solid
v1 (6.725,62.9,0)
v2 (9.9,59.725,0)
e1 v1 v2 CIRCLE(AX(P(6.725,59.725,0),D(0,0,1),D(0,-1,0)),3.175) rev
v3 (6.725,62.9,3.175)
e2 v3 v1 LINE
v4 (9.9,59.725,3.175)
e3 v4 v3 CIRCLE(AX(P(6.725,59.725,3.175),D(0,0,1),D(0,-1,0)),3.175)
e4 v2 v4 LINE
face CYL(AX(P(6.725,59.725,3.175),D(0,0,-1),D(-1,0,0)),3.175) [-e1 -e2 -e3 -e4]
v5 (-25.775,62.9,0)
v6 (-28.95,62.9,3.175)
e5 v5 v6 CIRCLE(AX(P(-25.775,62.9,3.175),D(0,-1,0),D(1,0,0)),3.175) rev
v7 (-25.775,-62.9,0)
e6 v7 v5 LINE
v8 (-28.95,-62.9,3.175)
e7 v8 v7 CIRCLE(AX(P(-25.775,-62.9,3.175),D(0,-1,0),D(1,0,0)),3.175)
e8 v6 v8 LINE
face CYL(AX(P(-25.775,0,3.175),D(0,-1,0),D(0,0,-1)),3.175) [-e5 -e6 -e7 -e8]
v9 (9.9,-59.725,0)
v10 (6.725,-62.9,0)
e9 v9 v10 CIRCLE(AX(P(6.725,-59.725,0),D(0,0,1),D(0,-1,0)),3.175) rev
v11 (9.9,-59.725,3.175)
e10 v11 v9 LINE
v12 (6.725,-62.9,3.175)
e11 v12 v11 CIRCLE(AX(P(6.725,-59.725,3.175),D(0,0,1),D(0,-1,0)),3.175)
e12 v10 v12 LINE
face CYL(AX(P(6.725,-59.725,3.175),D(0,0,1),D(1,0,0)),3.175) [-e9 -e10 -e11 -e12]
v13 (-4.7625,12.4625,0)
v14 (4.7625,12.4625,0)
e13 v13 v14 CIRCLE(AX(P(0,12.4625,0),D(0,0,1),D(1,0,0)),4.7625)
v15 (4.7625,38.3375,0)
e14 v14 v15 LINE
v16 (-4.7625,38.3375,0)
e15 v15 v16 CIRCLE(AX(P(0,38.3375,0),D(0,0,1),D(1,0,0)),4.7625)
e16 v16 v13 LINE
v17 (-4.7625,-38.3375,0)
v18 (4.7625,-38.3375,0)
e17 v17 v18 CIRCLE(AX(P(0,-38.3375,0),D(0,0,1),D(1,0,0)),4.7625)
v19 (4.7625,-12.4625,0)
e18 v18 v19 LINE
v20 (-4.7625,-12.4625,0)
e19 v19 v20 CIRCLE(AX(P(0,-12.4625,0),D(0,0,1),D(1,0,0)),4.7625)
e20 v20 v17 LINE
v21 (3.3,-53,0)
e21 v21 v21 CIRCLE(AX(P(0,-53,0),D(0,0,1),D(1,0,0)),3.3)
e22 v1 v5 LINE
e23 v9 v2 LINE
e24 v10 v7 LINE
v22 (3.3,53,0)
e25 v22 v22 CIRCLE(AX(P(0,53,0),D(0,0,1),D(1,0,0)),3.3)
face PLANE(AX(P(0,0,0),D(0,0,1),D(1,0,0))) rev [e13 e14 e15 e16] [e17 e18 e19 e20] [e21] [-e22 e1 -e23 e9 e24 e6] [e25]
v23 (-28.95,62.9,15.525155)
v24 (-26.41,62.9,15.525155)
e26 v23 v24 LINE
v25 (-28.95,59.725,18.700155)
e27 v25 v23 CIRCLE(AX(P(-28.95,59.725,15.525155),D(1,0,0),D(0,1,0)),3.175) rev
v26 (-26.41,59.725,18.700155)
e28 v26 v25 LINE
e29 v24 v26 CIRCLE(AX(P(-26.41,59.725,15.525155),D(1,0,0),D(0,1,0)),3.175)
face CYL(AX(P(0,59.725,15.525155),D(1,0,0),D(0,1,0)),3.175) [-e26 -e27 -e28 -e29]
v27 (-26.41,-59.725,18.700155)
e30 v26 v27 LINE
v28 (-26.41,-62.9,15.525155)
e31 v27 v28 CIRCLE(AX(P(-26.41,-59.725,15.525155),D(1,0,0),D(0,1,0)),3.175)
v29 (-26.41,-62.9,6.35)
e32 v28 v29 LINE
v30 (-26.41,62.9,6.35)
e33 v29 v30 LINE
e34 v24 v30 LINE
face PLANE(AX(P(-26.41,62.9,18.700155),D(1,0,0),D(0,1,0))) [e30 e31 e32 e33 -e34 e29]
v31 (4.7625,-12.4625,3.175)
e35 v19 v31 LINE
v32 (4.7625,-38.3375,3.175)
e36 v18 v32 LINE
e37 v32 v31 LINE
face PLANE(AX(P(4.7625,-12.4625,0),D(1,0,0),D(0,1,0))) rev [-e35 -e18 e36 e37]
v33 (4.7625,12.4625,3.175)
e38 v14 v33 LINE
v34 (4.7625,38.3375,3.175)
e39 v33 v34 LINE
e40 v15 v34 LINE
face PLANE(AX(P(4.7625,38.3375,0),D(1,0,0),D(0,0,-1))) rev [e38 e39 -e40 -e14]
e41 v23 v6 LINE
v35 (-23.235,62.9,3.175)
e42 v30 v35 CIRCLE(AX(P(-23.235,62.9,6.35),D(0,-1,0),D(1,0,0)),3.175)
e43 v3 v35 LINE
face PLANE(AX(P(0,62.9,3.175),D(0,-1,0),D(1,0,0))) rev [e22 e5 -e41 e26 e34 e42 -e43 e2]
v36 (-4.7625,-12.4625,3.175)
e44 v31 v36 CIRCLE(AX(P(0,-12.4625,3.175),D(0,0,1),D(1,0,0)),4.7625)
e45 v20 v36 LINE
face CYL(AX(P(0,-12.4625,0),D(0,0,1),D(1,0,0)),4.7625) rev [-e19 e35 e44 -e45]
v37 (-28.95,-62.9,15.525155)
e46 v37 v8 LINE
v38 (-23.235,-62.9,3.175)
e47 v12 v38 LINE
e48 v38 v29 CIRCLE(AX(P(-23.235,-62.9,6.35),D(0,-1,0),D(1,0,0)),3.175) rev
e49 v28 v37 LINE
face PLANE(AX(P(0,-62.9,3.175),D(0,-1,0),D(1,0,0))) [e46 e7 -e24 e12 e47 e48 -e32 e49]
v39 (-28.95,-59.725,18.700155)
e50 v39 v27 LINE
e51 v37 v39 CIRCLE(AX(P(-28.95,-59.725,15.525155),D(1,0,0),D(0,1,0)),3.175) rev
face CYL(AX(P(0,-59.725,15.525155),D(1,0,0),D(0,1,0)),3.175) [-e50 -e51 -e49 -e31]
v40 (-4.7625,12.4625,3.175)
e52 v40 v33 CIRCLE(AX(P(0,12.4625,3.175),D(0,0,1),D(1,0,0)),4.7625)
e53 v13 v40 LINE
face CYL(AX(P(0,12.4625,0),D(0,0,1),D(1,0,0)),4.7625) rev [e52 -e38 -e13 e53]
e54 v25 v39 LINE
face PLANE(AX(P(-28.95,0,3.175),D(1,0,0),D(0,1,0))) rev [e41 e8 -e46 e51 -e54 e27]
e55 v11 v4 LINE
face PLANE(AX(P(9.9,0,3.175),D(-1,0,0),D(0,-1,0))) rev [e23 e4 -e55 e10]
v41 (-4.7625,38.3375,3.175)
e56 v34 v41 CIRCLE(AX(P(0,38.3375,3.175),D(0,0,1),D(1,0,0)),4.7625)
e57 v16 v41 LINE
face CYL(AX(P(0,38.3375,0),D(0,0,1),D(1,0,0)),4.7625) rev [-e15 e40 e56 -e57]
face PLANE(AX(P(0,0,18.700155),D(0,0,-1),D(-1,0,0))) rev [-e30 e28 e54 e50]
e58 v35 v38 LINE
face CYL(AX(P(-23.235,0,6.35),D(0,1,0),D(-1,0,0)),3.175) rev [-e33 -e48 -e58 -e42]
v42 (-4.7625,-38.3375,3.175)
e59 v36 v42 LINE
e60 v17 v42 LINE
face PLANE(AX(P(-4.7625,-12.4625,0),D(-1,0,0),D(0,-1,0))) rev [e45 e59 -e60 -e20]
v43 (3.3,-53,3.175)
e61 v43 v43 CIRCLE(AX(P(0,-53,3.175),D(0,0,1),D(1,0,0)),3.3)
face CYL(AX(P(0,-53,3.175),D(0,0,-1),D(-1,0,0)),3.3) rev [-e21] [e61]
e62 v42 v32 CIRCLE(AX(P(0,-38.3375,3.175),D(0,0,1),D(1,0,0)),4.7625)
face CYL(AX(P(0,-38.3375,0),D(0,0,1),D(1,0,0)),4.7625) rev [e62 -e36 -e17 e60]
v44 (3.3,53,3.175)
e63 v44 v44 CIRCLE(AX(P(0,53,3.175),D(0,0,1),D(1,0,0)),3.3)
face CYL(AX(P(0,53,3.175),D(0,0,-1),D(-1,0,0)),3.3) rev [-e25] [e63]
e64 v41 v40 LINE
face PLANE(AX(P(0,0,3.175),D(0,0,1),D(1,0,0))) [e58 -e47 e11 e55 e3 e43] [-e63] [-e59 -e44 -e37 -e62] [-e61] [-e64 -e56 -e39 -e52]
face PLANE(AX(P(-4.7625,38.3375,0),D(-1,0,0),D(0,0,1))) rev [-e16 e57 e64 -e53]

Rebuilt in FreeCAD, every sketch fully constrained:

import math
import FreeCAD as App
import Part
import Sketcher
Q = App.Units.Quantity


def edges_at(feature, points):
    """Names of the edges that pass closest to the given points."""
    edges = feature.Shape.Edges
    near = lambda p: min(range(len(edges)), key=lambda i: edges[i].distToShape(Part.Vertex(*p))[0])
    return sorted({f"Edge{near(p) + 1}" for p in points})

doc = App.newDocument("Part")
body = doc.addObject("PartDesign::Body", "Body")

sketch1 = doc.addObject("Sketcher::SketchObject", "Sketch")
body.addObject(sketch1)
sketch1.AttachmentSupport = (doc.XY_Plane, [""])
sketch1.MapMode = "FlatFace"
sketch1.addGeometry(Part.LineSegment(App.Vector(9.9, -62.9, 0), App.Vector(9.9, 62.9, 0)), False)
sketch1.addGeometry(Part.LineSegment(App.Vector(9.9, 62.9, 0), App.Vector(-28.95, 62.9, 0)), False)
sketch1.addGeometry(Part.LineSegment(App.Vector(-28.95, 62.9, 0), App.Vector(-28.95, -62.9, 0)), False)
sketch1.addGeometry(Part.LineSegment(App.Vector(-28.95, -62.9, 0), App.Vector(9.9, -62.9, 0)), False)
sketch1.addGeometry(Part.Circle(App.Vector(0, -53, 0), App.Vector(0, 0, 1), 3.3), False)
sketch1.addGeometry(Part.Circle(App.Vector(0, 53, 0), App.Vector(0, 0, 1), 3.3), False)
sketch1.addConstraint(Sketcher.Constraint("Coincident", 0, 2, 1, 1))
sketch1.addConstraint(Sketcher.Constraint("Coincident", 1, 2, 2, 1))
sketch1.addConstraint(Sketcher.Constraint("Coincident", 2, 2, 3, 1))
sketch1.addConstraint(Sketcher.Constraint("Coincident", 3, 2, 0, 1))
sketch1.addConstraint(Sketcher.Constraint("Vertical", 0))
sketch1.addConstraint(Sketcher.Constraint("Horizontal", 1))
sketch1.addConstraint(Sketcher.Constraint("Vertical", 2))
sketch1.addConstraint(Sketcher.Constraint("Horizontal", 3))
sketch1.addConstraint(Sketcher.Constraint("Equal", 4, 5))
sketch1.addConstraint(Sketcher.Constraint("Symmetric", 4, 3, 5, 3, -1, 1))
sketch1.addConstraint(Sketcher.Constraint("PointOnObject", 4, 3, -2))
sketch1.addConstraint(Sketcher.Constraint("Diameter", 4, Q("6.6 mm")))
sketch1.addConstraint(Sketcher.Constraint("DistanceX", 1, 2, 1, 1, Q("38.85 mm")))
sketch1.addConstraint(Sketcher.Constraint("DistanceY", 0, 1, 0, 2, Q("125.8 mm")))
sketch1.addConstraint(Sketcher.Constraint("DistanceY", 4, 3, -1, 1, Q("53 mm")))
sketch1.addConstraint(Sketcher.Constraint("DistanceX", -1, 1, 0, 2, Q("9.9 mm")))
sketch1.addConstraint(Sketcher.Constraint("DistanceY", -1, 1, 0, 2, Q("62.9 mm")))
pad1 = doc.addObject("PartDesign::Pad", "Pad")
body.addObject(pad1)
pad1.Profile = sketch1
pad1.Length = Q("0.125 in")

sketch2 = doc.addObject("Sketcher::SketchObject", "Sketch001")
body.addObject(sketch2)
sketch2.AttachmentSupport = (doc.XY_Plane, [""])
sketch2.MapMode = "FlatFace"
sketch2.AttachmentOffset = App.Placement(App.Vector(0, 0, 0.125 * 25.4), App.Rotation())
sketch2.addGeometry(Part.LineSegment(App.Vector(4.7625, 12.4625, 0), App.Vector(4.7625, 38.3375, 0)), False)
sketch2.addGeometry(Part.ArcOfCircle(Part.Circle(App.Vector(0, 38.3375, 0), App.Vector(0, 0, 1), 4.7625), math.radians(0), math.radians(180)), False)
sketch2.addGeometry(Part.LineSegment(App.Vector(-4.7625, 38.3375, 0), App.Vector(-4.7625, 12.4625, 0)), False)
sketch2.addGeometry(Part.ArcOfCircle(Part.Circle(App.Vector(0, 12.4625, 0), App.Vector(0, 0, 1), 4.7625), math.radians(180), math.radians(360)), False)
sketch2.addGeometry(Part.LineSegment(App.Vector(4.7625, -38.3375, 0), App.Vector(4.7625, -12.4625, 0)), False)
sketch2.addGeometry(Part.ArcOfCircle(Part.Circle(App.Vector(0, -12.4625, 0), App.Vector(0, 0, 1), 4.7625), math.radians(0), math.radians(180)), False)
sketch2.addGeometry(Part.LineSegment(App.Vector(-4.7625, -12.4625, 0), App.Vector(-4.7625, -38.3375, 0)), False)
sketch2.addGeometry(Part.ArcOfCircle(Part.Circle(App.Vector(0, -38.3375, 0), App.Vector(0, 0, 1), 4.7625), math.radians(180), math.radians(360)), False)
sketch2.addConstraint(Sketcher.Constraint("Tangent", 0, 2, 1, 1))
sketch2.addConstraint(Sketcher.Constraint("Tangent", 1, 2, 2, 1))
sketch2.addConstraint(Sketcher.Constraint("Tangent", 2, 2, 3, 1))
sketch2.addConstraint(Sketcher.Constraint("Tangent", 3, 2, 0, 1))
sketch2.addConstraint(Sketcher.Constraint("Tangent", 4, 2, 5, 1))
sketch2.addConstraint(Sketcher.Constraint("Tangent", 5, 2, 6, 1))
sketch2.addConstraint(Sketcher.Constraint("Tangent", 6, 2, 7, 1))
sketch2.addConstraint(Sketcher.Constraint("Tangent", 7, 2, 4, 1))
sketch2.addConstraint(Sketcher.Constraint("Vertical", 0))
sketch2.addConstraint(Sketcher.Constraint("Vertical", 2))
sketch2.addConstraint(Sketcher.Constraint("Vertical", 4))
sketch2.addConstraint(Sketcher.Constraint("Vertical", 6))
sketch2.addConstraint(Sketcher.Constraint("Equal", 3, 5))
sketch2.addConstraint(Sketcher.Constraint("Symmetric", 3, 3, 5, 3, -1, 1))
sketch2.addConstraint(Sketcher.Constraint("Symmetric", 1, 3, 7, 3, -1))
sketch2.addConstraint(Sketcher.Constraint("Radius", 1, Q("0.1875 in")))
sketch2.addConstraint(Sketcher.Constraint("DistanceY", 5, 3, 1, 3, Q("2 in")))
sketch2.addConstraint(Sketcher.Constraint("DistanceY", 0, 1, 0, 2, Q("25.875 mm")))
pocket1 = doc.addObject("PartDesign::Pocket", "Pocket")
body.addObject(pocket1)
pocket1.Profile = sketch2
pocket1.Type = "ThroughAll"
pocket1.Midplane = True
doc.recompute()

fillet = doc.addObject("PartDesign::Fillet", "Fillet")
body.addObject(fillet)
fillet.Base = (pocket1, edges_at(pocket1, [(9.9, 62.9, 1.587), (9.9, -62.9, 1.587)]))
fillet.Radius = Q("0.125 in")

sketch3 = doc.addObject("Sketcher::SketchObject", "Sketch002")
body.addObject(sketch3)
sketch3.AttachmentSupport = (doc.XY_Plane, [""])
sketch3.MapMode = "FlatFace"
sketch3.AttachmentOffset = App.Placement(App.Vector(0, 0, 0.125 * 25.4), App.Rotation())
sketch3.addGeometry(Part.LineSegment(App.Vector(-28.95, 62.9, 0), App.Vector(-28.95, -62.9, 0)), False)
sketch3.addGeometry(Part.LineSegment(App.Vector(-28.95, -62.9, 0), App.Vector(-26.41, -62.9, 0)), False)
sketch3.addGeometry(Part.LineSegment(App.Vector(-26.41, -62.9, 0), App.Vector(-26.41, 62.9, 0)), False)
sketch3.addGeometry(Part.LineSegment(App.Vector(-26.41, 62.9, 0), App.Vector(-28.95, 62.9, 0)), False)
sketch3.addConstraint(Sketcher.Constraint("Coincident", 0, 2, 1, 1))
sketch3.addConstraint(Sketcher.Constraint("Coincident", 1, 2, 2, 1))
sketch3.addConstraint(Sketcher.Constraint("Coincident", 2, 2, 3, 1))
sketch3.addConstraint(Sketcher.Constraint("Coincident", 3, 2, 0, 1))
sketch3.addConstraint(Sketcher.Constraint("Vertical", 0))
sketch3.addConstraint(Sketcher.Constraint("Horizontal", 1))
sketch3.addConstraint(Sketcher.Constraint("Vertical", 2))
sketch3.addConstraint(Sketcher.Constraint("Horizontal", 3))
sketch3.addConstraint(Sketcher.Constraint("DistanceX", 1, 1, 1, 2, Q("0.1 in")))
sketch3.addConstraint(Sketcher.Constraint("DistanceY", 0, 2, 0, 1, Q("125.8 mm")))
sketch3.addConstraint(Sketcher.Constraint("DistanceX", 0, 2, -1, 1, Q("28.95 mm")))
sketch3.addConstraint(Sketcher.Constraint("DistanceY", 0, 2, -1, 1, Q("62.9 mm")))
pad2 = doc.addObject("PartDesign::Pad", "Pad001")
body.addObject(pad2)
pad2.Profile = sketch3
pad2.Length = 15.525155
doc.recompute()

fillet2 = doc.addObject("PartDesign::Fillet", "Fillet001")
body.addObject(fillet2)
fillet2.Base = (pad2, edges_at(pad2, [
    (-27.68, -62.9, 18.7),
    (-27.68, 62.9, 18.7),
    (-26.41, 0, 3.175),
    (-28.95, 0, 0),
]))
fillet2.Radius = Q("0.125 in")

doc.recompute()
